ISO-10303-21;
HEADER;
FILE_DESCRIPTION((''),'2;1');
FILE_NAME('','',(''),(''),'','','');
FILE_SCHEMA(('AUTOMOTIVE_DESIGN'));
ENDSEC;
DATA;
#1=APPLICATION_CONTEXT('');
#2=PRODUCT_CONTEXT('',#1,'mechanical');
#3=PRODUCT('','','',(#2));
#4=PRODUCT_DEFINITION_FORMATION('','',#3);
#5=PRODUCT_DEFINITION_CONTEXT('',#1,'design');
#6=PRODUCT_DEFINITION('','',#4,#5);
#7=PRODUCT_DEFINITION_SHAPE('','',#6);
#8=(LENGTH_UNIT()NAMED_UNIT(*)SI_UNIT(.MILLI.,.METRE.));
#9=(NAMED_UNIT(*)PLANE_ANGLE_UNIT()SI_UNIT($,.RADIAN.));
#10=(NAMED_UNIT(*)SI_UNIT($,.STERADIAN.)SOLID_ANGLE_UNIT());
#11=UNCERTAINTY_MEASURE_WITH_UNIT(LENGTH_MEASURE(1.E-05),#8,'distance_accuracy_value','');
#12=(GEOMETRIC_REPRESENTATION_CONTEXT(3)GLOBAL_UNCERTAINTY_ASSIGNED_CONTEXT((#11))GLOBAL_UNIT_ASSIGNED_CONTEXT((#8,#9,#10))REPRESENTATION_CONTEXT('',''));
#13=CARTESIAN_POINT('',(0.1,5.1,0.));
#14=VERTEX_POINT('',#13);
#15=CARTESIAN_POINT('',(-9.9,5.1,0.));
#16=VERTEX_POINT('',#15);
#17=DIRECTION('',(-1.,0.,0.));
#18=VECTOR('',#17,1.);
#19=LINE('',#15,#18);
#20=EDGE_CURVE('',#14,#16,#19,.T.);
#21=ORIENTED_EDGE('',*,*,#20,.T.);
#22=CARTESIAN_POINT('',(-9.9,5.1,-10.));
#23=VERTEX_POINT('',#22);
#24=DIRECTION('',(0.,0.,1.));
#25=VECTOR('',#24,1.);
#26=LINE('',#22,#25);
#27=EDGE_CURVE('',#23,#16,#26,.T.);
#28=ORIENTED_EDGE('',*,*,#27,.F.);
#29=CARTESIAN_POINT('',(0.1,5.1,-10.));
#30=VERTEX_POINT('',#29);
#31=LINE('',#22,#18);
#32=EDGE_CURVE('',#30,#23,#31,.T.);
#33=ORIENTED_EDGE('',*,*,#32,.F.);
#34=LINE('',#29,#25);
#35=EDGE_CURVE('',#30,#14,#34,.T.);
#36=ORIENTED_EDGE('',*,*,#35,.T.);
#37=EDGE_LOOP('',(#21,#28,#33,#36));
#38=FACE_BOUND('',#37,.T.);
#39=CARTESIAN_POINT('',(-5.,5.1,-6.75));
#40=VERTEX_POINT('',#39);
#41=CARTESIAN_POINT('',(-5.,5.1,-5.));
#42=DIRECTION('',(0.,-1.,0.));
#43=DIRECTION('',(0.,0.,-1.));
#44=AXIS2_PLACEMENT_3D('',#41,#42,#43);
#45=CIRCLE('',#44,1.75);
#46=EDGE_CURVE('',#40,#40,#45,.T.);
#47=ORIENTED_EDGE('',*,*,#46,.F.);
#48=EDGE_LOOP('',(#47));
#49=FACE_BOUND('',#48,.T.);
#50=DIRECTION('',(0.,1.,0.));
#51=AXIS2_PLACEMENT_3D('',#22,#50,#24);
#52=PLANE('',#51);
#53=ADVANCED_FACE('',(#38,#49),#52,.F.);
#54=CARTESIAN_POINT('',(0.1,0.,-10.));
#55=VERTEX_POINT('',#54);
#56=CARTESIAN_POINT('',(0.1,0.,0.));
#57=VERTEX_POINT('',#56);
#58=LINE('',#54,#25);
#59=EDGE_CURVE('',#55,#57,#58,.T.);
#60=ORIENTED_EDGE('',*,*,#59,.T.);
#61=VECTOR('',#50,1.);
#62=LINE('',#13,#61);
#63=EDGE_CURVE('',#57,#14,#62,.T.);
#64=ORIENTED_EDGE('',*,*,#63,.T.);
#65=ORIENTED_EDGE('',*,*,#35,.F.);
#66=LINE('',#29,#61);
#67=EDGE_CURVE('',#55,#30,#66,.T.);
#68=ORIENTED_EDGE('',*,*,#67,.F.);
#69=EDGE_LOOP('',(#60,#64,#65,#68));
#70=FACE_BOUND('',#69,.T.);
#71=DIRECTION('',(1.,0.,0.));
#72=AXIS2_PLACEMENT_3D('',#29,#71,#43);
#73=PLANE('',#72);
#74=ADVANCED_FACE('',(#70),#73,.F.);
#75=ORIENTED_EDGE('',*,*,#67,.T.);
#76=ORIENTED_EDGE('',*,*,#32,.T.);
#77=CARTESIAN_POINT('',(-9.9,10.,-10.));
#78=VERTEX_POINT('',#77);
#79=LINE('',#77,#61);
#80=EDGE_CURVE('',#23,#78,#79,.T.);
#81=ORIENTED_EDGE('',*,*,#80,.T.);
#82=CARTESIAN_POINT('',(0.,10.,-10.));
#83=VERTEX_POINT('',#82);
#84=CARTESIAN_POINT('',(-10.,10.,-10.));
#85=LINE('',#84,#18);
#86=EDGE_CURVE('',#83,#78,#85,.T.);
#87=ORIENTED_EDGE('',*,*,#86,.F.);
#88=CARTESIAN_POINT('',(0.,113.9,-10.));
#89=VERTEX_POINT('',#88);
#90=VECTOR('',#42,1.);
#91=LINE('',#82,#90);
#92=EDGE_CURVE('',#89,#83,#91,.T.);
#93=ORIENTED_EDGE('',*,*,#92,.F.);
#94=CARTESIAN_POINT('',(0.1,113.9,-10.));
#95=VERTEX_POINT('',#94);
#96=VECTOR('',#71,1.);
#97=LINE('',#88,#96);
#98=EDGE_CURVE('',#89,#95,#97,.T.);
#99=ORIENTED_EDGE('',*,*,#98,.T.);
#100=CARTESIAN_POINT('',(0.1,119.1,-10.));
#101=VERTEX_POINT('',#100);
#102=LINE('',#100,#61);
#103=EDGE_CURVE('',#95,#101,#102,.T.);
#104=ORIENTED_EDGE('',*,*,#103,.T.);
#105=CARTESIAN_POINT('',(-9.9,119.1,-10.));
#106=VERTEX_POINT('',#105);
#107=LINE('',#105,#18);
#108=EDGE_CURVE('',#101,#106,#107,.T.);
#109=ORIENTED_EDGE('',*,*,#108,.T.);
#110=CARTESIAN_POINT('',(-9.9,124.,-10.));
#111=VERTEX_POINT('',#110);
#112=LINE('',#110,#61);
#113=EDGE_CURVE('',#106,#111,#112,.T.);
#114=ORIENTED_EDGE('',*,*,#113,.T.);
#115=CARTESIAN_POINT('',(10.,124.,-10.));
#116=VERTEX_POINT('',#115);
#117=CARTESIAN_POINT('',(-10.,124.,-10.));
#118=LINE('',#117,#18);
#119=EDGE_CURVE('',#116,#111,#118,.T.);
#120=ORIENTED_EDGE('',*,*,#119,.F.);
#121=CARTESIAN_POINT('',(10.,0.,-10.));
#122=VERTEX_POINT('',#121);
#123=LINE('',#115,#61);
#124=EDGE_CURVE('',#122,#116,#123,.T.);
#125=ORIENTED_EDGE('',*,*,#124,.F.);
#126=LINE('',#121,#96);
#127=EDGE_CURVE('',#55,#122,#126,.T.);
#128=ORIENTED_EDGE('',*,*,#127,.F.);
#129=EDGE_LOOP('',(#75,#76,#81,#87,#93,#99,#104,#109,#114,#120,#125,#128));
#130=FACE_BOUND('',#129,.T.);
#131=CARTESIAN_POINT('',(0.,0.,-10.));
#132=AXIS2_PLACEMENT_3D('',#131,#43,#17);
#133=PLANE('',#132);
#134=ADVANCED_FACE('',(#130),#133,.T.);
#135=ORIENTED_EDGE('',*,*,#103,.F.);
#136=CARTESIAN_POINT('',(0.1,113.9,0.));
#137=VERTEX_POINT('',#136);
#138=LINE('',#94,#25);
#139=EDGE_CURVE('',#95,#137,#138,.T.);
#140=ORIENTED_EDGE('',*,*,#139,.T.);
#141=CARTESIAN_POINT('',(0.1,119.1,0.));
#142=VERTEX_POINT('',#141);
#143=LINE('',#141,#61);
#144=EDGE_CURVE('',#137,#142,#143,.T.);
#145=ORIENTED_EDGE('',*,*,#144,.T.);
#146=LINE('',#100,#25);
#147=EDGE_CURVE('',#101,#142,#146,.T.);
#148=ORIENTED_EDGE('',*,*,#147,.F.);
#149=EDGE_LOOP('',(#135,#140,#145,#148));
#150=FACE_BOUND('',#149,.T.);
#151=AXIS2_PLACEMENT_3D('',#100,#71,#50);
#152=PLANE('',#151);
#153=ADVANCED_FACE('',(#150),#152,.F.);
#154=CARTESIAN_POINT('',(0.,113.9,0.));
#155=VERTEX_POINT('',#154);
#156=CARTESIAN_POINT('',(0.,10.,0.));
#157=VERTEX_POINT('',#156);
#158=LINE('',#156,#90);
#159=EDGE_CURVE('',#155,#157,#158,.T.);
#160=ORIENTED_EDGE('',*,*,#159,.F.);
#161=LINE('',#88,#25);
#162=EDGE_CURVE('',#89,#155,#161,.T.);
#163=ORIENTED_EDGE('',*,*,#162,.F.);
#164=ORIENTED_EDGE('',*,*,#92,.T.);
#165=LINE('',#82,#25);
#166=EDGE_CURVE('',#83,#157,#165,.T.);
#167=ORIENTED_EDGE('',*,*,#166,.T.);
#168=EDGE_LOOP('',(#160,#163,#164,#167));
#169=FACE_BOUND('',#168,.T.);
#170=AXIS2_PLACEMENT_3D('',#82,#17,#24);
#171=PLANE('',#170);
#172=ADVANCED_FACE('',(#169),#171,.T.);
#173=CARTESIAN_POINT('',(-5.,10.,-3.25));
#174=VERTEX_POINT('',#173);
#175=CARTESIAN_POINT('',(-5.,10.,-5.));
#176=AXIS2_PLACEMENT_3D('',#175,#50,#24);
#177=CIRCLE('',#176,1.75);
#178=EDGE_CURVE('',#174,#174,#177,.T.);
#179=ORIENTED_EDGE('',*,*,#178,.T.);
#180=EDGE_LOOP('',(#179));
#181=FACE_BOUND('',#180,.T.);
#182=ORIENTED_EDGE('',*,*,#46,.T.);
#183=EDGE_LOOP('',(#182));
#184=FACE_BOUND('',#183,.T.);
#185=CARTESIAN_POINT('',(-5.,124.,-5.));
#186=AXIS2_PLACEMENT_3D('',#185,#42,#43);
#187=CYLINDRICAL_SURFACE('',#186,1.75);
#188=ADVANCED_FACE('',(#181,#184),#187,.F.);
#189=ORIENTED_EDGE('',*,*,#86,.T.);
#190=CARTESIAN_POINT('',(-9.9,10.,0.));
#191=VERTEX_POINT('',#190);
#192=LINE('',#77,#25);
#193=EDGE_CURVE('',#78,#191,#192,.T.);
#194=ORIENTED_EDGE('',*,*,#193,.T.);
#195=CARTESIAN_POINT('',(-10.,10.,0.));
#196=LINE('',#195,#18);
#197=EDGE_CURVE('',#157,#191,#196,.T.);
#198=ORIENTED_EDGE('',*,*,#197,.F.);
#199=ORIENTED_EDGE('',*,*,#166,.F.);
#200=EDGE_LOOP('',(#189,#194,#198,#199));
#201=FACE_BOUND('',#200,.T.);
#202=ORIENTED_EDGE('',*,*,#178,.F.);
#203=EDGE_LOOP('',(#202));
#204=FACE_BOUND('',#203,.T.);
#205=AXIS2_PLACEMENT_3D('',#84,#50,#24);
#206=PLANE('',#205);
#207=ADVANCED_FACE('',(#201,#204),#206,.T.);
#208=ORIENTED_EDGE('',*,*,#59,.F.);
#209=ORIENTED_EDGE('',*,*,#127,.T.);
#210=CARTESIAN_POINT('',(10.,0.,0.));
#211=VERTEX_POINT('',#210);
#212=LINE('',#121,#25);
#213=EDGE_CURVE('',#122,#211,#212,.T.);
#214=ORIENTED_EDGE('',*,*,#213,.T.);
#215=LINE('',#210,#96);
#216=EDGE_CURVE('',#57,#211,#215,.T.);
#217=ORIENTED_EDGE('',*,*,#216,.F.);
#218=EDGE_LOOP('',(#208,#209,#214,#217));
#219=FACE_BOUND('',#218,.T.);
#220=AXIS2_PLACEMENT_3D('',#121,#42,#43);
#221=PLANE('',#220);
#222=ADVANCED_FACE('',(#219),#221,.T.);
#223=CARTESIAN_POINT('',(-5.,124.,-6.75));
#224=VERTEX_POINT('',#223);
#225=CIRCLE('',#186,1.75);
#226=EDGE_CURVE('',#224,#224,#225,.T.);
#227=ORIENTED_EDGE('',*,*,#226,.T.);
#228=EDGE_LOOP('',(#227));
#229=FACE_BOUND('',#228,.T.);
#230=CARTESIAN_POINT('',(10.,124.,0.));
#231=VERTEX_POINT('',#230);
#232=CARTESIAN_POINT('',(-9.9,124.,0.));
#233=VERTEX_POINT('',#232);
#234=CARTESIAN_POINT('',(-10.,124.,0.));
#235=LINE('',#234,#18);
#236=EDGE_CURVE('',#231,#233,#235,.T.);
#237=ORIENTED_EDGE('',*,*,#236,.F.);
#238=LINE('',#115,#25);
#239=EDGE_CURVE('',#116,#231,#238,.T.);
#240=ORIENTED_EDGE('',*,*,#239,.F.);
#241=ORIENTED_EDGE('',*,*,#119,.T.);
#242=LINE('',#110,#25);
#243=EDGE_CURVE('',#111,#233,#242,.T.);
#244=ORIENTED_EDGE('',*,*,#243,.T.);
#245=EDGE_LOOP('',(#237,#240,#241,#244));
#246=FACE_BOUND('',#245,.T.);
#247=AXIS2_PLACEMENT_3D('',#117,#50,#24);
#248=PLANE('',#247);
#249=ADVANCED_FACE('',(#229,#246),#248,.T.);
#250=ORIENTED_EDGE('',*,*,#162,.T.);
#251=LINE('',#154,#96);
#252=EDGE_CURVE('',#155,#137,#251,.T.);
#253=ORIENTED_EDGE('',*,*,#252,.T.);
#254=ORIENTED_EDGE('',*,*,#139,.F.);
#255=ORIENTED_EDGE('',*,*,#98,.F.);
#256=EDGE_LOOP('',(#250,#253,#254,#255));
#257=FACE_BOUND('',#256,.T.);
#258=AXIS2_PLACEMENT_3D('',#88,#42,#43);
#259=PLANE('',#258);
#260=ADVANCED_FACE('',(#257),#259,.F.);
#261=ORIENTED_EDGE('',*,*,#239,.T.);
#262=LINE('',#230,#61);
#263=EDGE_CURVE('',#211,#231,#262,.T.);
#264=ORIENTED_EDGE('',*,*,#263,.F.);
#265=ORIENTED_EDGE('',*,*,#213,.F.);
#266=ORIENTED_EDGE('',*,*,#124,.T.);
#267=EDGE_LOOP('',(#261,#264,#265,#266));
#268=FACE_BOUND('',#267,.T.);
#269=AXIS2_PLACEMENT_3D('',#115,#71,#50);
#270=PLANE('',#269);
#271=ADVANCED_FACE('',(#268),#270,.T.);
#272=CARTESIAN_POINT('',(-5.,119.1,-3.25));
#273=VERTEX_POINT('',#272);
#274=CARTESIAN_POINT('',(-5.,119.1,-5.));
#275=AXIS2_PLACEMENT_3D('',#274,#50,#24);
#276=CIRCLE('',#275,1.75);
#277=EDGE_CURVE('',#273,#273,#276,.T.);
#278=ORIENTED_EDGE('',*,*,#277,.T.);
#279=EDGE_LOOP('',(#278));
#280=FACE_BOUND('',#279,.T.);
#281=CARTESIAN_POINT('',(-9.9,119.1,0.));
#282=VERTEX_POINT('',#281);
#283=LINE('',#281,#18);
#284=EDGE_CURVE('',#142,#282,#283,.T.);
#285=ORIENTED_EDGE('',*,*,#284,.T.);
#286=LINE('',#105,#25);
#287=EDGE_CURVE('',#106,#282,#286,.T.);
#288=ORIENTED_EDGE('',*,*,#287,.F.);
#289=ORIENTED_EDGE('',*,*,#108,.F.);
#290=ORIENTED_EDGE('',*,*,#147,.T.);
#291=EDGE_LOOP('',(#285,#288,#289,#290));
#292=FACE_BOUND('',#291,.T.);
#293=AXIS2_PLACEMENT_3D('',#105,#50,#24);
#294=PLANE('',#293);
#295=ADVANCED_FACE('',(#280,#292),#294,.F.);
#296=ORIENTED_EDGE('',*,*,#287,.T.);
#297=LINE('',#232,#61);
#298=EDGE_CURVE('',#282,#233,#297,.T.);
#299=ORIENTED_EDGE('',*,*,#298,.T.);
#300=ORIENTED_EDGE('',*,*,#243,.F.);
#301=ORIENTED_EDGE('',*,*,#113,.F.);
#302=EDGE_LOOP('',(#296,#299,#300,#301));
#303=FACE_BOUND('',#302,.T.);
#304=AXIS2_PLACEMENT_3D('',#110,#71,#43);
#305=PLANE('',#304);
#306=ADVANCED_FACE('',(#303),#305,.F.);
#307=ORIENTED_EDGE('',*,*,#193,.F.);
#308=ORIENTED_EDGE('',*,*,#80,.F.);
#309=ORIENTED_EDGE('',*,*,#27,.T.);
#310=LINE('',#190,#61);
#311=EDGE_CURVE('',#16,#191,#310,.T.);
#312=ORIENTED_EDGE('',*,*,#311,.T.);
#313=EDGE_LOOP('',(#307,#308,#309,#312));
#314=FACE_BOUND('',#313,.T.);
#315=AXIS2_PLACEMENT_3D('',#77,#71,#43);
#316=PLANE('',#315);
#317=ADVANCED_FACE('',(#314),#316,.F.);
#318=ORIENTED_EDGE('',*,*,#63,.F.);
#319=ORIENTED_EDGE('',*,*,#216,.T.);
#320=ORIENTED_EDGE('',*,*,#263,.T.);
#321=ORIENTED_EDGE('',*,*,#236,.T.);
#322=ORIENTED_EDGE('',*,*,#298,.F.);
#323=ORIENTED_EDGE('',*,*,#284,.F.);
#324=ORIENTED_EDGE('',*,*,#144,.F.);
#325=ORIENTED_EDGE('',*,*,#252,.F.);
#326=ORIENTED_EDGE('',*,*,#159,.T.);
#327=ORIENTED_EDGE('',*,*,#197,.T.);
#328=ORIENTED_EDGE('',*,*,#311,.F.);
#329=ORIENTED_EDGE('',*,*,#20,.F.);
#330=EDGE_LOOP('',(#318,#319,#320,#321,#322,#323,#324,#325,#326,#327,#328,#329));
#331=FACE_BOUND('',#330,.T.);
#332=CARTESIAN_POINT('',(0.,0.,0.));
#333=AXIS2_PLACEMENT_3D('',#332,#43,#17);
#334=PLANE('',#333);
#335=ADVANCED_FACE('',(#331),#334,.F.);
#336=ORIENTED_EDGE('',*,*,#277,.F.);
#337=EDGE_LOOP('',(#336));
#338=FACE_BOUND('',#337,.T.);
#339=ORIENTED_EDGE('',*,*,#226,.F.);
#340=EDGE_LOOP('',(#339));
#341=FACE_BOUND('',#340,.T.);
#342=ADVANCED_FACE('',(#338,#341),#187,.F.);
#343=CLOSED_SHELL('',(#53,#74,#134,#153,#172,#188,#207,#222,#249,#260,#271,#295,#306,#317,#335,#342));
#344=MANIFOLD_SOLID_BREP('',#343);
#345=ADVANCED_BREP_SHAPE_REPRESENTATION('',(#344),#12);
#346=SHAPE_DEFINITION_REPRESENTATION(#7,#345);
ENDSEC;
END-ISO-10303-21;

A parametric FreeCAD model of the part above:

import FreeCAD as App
import Part
import Sketcher

V = App.Vector


def add_polygon(sketch, points):
    """Adds a closed chain of lines whose ends are joined by coincident constraints."""
    first, n = sketch.GeometryCount, len(points)
    for a, b in zip(points, points[1:] + points[:1]):
        sketch.addGeometry(Part.LineSegment(App.Vector(*a, 0), App.Vector(*b, 0)), False)
    for i in range(n):
        sketch.addConstraint(Sketcher.Constraint("Coincident", first + i, 2, first + (i + 1) % n, 1))

doc = App.newDocument("Part")
body = doc.addObject("PartDesign::Body", "Body")

sketch1 = body.newObject("Sketcher::SketchObject", "Sketch")
sketch1.AttachmentSupport = (doc.getObject("XY_Plane"), [""])
sketch1.MapMode = "FlatFace"
add_polygon(sketch1, [(0, 5), (0, 0), (10, 0), (10, 124), (-10, 124), (-10, 119), (0, 119), (0, 10), (-10, 10), (-10, 5)])
sketch1.addConstraint([
    Sketcher.Constraint("Vertical", 0),
    Sketcher.Constraint("Horizontal", 1),
    Sketcher.Constraint("Vertical", 2),
    Sketcher.Constraint("Horizontal", 3),
    Sketcher.Constraint("Vertical", 4),
    Sketcher.Constraint("Horizontal", 5),
    Sketcher.Constraint("Vertical", 6),
    Sketcher.Constraint("Horizontal", 7),
    Sketcher.Constraint("Vertical", 8),
    Sketcher.Constraint("Horizontal", 9),
    Sketcher.Constraint("Coincident", 0, 2, -1, 1),
    Sketcher.Constraint("PointOnObject", 5, 2, -2),
    Sketcher.Constraint("Vertical", 4, 2, 7, 2),
    Sketcher.Constraint("Equal", 1, 5),
    Sketcher.Constraint("Equal", 0, 4),
    Sketcher.Constraint("Equal", 4, 8),
    Sketcher.Constraint("DistanceX", 1, 1, 1, 2, 10.0),
    Sketcher.Constraint("DistanceY", 0, 2, 0, 1, 5.0),
    Sketcher.Constraint("DistanceY", 2, 1, 2, 2, 124.0),
])
pad1 = body.newObject("PartDesign::Pad", "Pad")
pad1.Profile = sketch1
pad1.Length = 10
pad1.Reversed = True

sketch2 = body.newObject("Sketcher::SketchObject", "Sketch001")
sketch2.AttachmentSupport = (doc.getObject("XY_Plane"), [""])
sketch2.MapMode = "FlatFace"
add_polygon(sketch2, [(-10, 10), (-10, 5), (0, 5), (0, 0), (0.1, 0), (0.1, 5.1), (-9.9, 5.1), (-9.9, 10)])
add_polygon(sketch2, [(-10, 124), (-10, 119), (0, 119), (0, 113.9), (0.1, 113.9), (0.1, 119.1), (-9.9, 119.1), (-9.9, 124)])
sketch2.addConstraint([
    Sketcher.Constraint("Vertical", 0),
    Sketcher.Constraint("Horizontal", 1),
    Sketcher.Constraint("Vertical", 2),
    Sketcher.Constraint("Horizontal", 3),
    Sketcher.Constraint("Vertical", 4),
    Sketcher.Constraint("Horizontal", 5),
    Sketcher.Constraint("Vertical", 6),
    Sketcher.Constraint("Horizontal", 7),
    Sketcher.Constraint("Vertical", 8),
    Sketcher.Constraint("Horizontal", 9),
    Sketcher.Constraint("Vertical", 10),
    Sketcher.Constraint("Horizontal", 11),
    Sketcher.Constraint("Vertical", 12),
    Sketcher.Constraint("Horizontal", 13),
    Sketcher.Constraint("Vertical", 14),
    Sketcher.Constraint("Horizontal", 15),
    Sketcher.Constraint("Coincident", 2, 2, -1, 1),
    Sketcher.Constraint("PointOnObject", 9, 2, -2),
    Sketcher.Constraint("Vertical", 7, 2, 8, 2),
    Sketcher.Constraint("Vertical", 4, 2, 11, 2),
    Sketcher.Constraint("Vertical", 6, 2, 13, 2),
    Sketcher.Constraint("Equal", 1, 5),
    Sketcher.Constraint("Equal", 0, 2),
    Sketcher.Constraint("Equal", 2, 8),
    Sketcher.Constraint("Equal", 4, 10),
    Sketcher.Constraint("Equal", 6, 14),
    Sketcher.Constraint("DistanceX", 1, 1, 1, 2, 10.0),
    Sketcher.Constraint("DistanceY", 0, 2, 0, 1, 5.0),
    Sketcher.Constraint("DistanceX", 3, 1, 3, 2, 0.1),
    Sketcher.Constraint("DistanceY", 4, 1, 4, 2, 5.1),
    Sketcher.Constraint("DistanceY", -1, 1, 8, 2, 119.0),
])
pocket1 = body.newObject("PartDesign::Pocket", "Pocket")
pocket1.Profile = sketch2
pocket1.Type = "ThroughAll"

sketch3 = body.newObject("Sketcher::SketchObject", "Sketch002")
sketch3.AttachmentSupport = (doc.getObject("XZ_Plane"), [""])
sketch3.MapMode = "FlatFace"
sketch3.AttachmentOffset = App.Placement(V(0, 0, -5.1), App.Rotation())
sketch3.addGeometry(Part.Circle(V(-5, -5, 0), V(0, 0, 1), 1.8), False)
sketch3.addConstraint([
    Sketcher.Constraint("Diameter", 0, 3.5),
    Sketcher.Constraint("DistanceX", 0, 3, -1, 1, 5.0),
    Sketcher.Constraint("DistanceY", 0, 3, -1, 1, 5.0),
])
pocket2 = body.newObject("PartDesign::Pocket", "Pocket001")
pocket2.Profile = sketch3
pocket2.Type = "ThroughAll"

doc.recompute()
